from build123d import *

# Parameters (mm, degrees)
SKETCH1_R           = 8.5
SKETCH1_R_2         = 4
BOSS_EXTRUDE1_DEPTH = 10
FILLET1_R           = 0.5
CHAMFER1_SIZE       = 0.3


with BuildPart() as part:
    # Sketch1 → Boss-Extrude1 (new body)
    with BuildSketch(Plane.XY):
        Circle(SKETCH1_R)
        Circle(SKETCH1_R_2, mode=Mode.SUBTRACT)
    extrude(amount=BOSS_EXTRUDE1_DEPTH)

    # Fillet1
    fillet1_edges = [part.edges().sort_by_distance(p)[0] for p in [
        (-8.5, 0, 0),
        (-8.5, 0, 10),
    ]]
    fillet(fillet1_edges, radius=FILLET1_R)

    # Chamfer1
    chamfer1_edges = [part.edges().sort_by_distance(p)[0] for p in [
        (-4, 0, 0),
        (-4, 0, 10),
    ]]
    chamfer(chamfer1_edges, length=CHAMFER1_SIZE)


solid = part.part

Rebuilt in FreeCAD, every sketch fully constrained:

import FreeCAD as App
import Part
import Sketcher


def edges_at(feature, points):
    """Names of the edges that pass closest to the given points."""
    edges = feature.Shape.Edges
    near = lambda p: min(range(len(edges)), key=lambda i: edges[i].distToShape(Part.Vertex(*p))[0])
    return sorted({f"Edge{near(p) + 1}" for p in points})

doc = App.newDocument("Part")
params = doc.addObject("Spreadsheet::Sheet", "Params")
for row, (alias, value) in enumerate([
    ("sketch1_diameter", "17 mm"),
    ("sketch1_diameter2", "8 mm"),
    ("pad1_length", "10 mm"),
    ("fillet_radius", "0.5 mm"),
    ("chamfer_size", "0.3 mm"),
], start=1):
    params.set(f"A{row}", alias)
    params.set(f"B{row}", "=" + value)
    params.setAlias(f"B{row}", alias)

body = doc.addObject("PartDesign::Body", "Body")

sketch1 = body.newObject("Sketcher::SketchObject", "Sketch")
sketch1.AttachmentSupport = (doc.getObject("XY_Plane"), [""])
sketch1.MapMode = "FlatFace"
sketch1.addGeometry(Part.Circle(App.Vector(0, 0, 0), App.Vector(0, 0, 1), 8.5), False)
sketch1.addGeometry(Part.Circle(App.Vector(0, 0, 0), App.Vector(0, 0, 1), 4), False)
sketch1.addConstraint(Sketcher.Constraint("Coincident", 0, 3, -1, 1))
sketch1.addConstraint(Sketcher.Constraint("Coincident", 1, 3, -1, 1))
sketch1.addConstraint(Sketcher.Constraint("Diameter", 0, 17.0))
sketch1.addConstraint(Sketcher.Constraint("Diameter", 1, 8.0))
sketch1.setExpression("Constraints[2]", "Params.sketch1_diameter")
sketch1.setExpression("Constraints[3]", "Params.sketch1_diameter2")
pad1 = body.newObject("PartDesign::Pad", "Pad")
pad1.Profile = sketch1
pad1.setExpression("Length", "Params.pad1_length")
doc.recompute()

fillet = body.newObject("PartDesign::Fillet", "Fillet")
fillet.Base = (pad1, edges_at(pad1, [(-8.5, 0, 0), (-8.5, 0, 10)]))
fillet.setExpression("Radius", "Params.fillet_radius")
doc.recompute()

chamfer = body.newObject("PartDesign::Chamfer", "Chamfer")
chamfer.Base = (fillet, edges_at(fillet, [(-4, 0, 0), (-4, 0, 10)]))
chamfer.setExpression("Size", "Params.chamfer_size")

doc.recompute()
